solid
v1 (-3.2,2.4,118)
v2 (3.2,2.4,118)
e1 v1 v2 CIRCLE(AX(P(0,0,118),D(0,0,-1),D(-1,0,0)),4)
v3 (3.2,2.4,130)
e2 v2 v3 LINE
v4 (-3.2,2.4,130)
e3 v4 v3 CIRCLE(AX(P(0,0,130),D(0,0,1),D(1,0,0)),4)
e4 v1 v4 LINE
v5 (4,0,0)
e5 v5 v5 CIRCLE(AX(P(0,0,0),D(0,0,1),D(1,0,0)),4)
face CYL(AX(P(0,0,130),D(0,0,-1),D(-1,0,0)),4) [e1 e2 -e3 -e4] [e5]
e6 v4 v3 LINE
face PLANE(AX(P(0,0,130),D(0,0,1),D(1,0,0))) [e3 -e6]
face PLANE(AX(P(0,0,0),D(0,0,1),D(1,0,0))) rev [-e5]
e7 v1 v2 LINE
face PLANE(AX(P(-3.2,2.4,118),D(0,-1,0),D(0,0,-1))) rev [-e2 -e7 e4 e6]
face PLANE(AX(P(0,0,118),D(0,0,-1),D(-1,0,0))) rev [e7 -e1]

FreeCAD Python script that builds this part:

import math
import FreeCAD as App
import Part
import Sketcher

V = App.Vector
Q = App.Units.Quantity

doc = App.newDocument("Part")
body = doc.addObject("PartDesign::Body", "Body")

sketch1 = body.newObject("Sketcher::SketchObject", "Sketch")
sketch1.AttachmentSupport = (doc.getObject("XY_Plane"), [""])
sketch1.MapMode = "FlatFace"
sketch1.addGeometry(Part.Circle(V(0, 0, 0), V(0, 0, 1), 4), False)
sketch1.addConstraint([
    Sketcher.Constraint("Coincident", 0, 3, -1, 1),
    Sketcher.Constraint("Diameter", 0, Q("8 mm")),
])
pad1 = body.newObject("PartDesign::Pad", "Pad")
pad1.Profile = sketch1
pad1.Length = 130

sketch2 = body.newObject("Sketcher::SketchObject", "Sketch001")
sketch2.AttachmentSupport = (doc.getObject("XY_Plane"), [""])
sketch2.MapMode = "FlatFace"
sketch2.AttachmentOffset = App.Placement(V(0, 0, 130), App.Rotation())
sketch2.addGeometry([
    Part.LineSegment(V(-3.2, 2.4, 0), V(3.2, 2.4, 0)),
    Part.ArcOfCircle(Part.Circle(V(0, 0, 0), V(0, 0, 1), 4), math.radians(37), math.radians(143)),
], False)
sketch2.addConstraint([
    Sketcher.Constraint("Coincident", 0, 1, 1, 2),
    Sketcher.Constraint("Coincident", 1, 1, 0, 2),
    Sketcher.Constraint("Horizontal", 0),
    Sketcher.Constraint("Coincident", 1, 3, -1, 1),
    Sketcher.Constraint("Radius", 1, Q("4 mm")),
    Sketcher.Constraint("DistanceX", 0, 1, 0, 2, Q("6.4 mm")),
])
pocket1 = body.newObject("PartDesign::Pocket", "Pocket")
pocket1.Profile = sketch2
pocket1.Length = 12

doc.recompute()
